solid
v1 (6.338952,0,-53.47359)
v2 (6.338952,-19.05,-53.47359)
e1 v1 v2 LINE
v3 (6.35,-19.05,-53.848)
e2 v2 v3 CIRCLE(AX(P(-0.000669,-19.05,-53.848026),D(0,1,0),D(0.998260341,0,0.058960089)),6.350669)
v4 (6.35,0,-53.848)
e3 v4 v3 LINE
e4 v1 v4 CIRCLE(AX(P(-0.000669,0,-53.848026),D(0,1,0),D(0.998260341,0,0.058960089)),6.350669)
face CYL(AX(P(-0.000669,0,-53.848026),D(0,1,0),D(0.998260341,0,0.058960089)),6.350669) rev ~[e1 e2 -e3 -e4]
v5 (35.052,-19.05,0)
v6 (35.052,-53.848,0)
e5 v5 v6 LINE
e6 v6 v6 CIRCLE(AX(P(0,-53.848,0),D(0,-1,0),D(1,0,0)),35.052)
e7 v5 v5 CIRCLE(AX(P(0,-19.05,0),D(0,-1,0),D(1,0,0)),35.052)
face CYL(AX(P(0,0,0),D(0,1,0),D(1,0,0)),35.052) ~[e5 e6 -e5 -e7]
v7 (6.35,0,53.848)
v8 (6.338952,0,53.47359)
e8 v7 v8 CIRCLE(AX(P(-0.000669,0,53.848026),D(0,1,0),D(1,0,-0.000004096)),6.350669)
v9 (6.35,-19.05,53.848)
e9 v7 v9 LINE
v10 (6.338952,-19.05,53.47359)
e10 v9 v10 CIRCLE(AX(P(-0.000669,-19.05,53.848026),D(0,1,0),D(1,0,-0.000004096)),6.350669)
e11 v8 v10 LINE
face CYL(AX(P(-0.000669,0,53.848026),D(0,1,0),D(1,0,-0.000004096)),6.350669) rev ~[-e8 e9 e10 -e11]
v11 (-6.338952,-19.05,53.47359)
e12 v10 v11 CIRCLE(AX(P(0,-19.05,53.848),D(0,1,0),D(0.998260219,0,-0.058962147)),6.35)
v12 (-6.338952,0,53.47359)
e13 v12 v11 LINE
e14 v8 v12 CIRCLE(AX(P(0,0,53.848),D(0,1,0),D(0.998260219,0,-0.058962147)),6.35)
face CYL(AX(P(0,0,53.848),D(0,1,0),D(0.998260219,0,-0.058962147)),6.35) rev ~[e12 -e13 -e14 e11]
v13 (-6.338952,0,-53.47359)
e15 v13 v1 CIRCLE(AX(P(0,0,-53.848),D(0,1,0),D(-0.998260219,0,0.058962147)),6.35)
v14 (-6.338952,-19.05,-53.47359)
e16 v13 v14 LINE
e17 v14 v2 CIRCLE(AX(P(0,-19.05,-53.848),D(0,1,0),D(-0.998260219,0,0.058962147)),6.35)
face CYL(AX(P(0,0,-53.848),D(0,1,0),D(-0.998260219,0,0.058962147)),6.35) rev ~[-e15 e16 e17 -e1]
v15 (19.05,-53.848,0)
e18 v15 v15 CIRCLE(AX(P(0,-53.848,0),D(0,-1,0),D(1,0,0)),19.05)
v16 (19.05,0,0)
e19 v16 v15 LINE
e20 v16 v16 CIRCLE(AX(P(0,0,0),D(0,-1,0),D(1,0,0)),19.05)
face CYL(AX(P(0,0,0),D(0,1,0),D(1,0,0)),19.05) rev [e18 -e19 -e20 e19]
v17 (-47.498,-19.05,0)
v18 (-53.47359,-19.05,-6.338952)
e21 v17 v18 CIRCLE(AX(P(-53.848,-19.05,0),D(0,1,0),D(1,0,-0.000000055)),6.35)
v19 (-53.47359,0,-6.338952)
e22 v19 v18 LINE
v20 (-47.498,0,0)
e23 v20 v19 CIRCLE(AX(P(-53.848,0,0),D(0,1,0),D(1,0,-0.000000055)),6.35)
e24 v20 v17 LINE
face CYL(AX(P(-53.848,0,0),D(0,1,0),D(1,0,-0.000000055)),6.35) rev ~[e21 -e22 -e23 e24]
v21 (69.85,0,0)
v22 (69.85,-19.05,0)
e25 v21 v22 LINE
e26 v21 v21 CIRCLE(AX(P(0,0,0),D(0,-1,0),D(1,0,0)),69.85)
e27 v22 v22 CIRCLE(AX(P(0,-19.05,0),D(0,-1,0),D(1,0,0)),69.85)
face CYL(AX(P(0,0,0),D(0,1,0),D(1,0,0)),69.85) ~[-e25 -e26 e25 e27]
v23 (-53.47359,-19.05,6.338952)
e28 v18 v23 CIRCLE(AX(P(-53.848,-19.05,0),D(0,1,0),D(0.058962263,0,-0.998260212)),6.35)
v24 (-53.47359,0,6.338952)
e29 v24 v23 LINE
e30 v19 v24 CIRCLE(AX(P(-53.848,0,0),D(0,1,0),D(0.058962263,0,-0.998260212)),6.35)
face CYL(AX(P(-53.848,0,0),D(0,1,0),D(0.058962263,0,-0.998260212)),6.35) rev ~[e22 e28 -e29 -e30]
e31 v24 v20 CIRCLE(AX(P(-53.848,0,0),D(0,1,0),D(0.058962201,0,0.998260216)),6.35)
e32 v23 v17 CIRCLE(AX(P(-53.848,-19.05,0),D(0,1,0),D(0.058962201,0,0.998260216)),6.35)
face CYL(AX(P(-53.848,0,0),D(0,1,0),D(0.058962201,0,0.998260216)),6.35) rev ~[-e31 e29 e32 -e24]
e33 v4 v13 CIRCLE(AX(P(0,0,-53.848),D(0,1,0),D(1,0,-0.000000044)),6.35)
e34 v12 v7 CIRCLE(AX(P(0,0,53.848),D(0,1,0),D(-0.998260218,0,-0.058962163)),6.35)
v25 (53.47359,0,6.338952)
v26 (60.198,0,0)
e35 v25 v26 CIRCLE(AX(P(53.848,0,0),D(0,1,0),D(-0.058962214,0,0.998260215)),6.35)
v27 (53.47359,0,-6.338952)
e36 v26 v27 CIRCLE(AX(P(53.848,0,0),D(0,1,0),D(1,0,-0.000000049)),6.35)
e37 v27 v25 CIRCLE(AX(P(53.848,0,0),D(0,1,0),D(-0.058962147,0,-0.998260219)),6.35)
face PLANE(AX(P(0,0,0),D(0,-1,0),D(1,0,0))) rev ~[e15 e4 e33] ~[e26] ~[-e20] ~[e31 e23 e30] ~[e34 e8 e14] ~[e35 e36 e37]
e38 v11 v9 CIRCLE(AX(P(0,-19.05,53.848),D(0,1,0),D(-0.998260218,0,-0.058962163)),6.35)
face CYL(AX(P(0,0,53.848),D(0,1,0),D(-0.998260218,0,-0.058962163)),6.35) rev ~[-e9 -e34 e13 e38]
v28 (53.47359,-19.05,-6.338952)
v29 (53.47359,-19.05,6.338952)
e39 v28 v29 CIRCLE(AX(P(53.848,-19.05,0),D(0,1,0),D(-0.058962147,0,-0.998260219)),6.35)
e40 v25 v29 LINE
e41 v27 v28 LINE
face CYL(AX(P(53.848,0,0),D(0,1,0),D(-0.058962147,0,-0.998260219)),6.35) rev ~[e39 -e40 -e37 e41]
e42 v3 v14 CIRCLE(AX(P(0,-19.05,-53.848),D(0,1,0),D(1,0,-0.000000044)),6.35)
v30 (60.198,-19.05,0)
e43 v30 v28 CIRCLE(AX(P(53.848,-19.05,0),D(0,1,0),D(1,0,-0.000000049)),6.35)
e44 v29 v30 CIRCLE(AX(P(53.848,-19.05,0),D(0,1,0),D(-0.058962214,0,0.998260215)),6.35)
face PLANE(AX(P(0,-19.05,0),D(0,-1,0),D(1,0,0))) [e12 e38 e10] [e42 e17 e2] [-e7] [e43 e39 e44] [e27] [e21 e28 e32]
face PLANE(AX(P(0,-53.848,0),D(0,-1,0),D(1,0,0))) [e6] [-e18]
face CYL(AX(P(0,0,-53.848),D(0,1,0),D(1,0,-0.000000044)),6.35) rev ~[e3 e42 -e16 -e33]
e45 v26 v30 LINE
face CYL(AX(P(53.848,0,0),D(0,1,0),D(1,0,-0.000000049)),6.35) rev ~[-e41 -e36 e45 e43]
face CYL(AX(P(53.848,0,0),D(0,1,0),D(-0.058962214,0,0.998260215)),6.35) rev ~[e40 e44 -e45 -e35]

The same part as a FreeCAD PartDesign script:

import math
import FreeCAD as App
import Part
import Sketcher
from FreeCAD import Vector
Q = App.Units.Quantity

doc = App.newDocument("Part")
body = doc.addObject("PartDesign::Body", "Body")

# Sketch on XZ plane
sketch1 = doc.addObject("Sketcher::SketchObject", "Sketch")
body.addObject(sketch1)
sketch1.AttachmentSupport = (doc.XZ_Plane, [""])
sketch1.MapMode = "FlatFace"
sketch1.addGeometry([
    Part.Circle(Vector(0, 0, 0), Vector(0, 0, 1), 35.052),
    Part.Circle(Vector(0, 0, 0), Vector(0, 0, 1), 19.05),
], False)
sketch1.addConstraint([
    Sketcher.Constraint("Coincident", 0, 3, -1, 1),
    Sketcher.Constraint("Coincident", 1, 3, -1, 1),
    Sketcher.Constraint("Diameter", 1, Q("1.5 in")),
    Sketcher.Constraint("Diameter", 0, Q("2.76 in")),
])
pad1 = doc.addObject("PartDesign::Pad", "Pad")
body.addObject(pad1)
pad1.Profile = sketch1
pad1.Length = Q("2.12 in")

# Sketch on XZ plane
sketch2 = doc.addObject("Sketcher::SketchObject", "Sketch001")
body.addObject(sketch2)
sketch2.AttachmentSupport = (doc.XZ_Plane, [""])
sketch2.MapMode = "FlatFace"
sketch2.addGeometry([
    Part.Circle(Vector(0, 0, 0), Vector(0, 0, 1), 69.85),  # 0
    Part.ArcOfCircle(Part.Circle(Vector(-53.848, 0, 0), Vector(0, 0, 1), 6.35), math.radians(86.619751), math.radians(273.380249)),  # 1
    Part.ArcOfCircle(Part.Circle(Vector(-53.848, 0, 0), Vector(0, 0, 1), 6.35), math.radians(0.000003), math.radians(86.619754)),  # 2
    Part.ArcOfCircle(Part.Circle(Vector(-53.848, 0, 0), Vector(0, 0, 1), 6.35), math.radians(-86.619754), math.radians(-0.000003)),  # 3
    Part.ArcOfCircle(Part.Circle(Vector(0, -53.848, 0), Vector(0, 0, 1), 6.35), math.radians(176.619756), math.radians(359.999998)),  # 4
    Part.ArcOfCircle(Part.Circle(Vector(0, -53.848, 0), Vector(0, 0, 1), 6.35), math.radians(3.380243), math.radians(176.619757)),  # 5
    Part.ArcOfCircle(Part.Circle(Vector(-0.000669, -53.848026, 0), Vector(0, 0, 1), 6.350669), math.radians(0.000235), math.radians(3.380125)),  # 6
    Part.Circle(Vector(0, 0, 0), Vector(0, 0, 1), 35.052),  # 7
    Part.ArcOfCircle(Part.Circle(Vector(53.848, 0, 0), Vector(0, 0, 1), 6.35), math.radians(-93.380247), math.radians(-0.000003)),  # 8
    Part.ArcOfCircle(Part.Circle(Vector(53.848, 0, 0), Vector(0, 0, 1), 6.35), math.radians(93.380243), math.radians(266.619757)),  # 9
    Part.ArcOfCircle(Part.Circle(Vector(53.848, 0, 0), Vector(0, 0, 1), 6.35), math.radians(0.000003), math.radians(93.380247)),  # 10
    Part.ArcOfCircle(Part.Circle(Vector(-0.000669, 53.848026, 0), Vector(0, 0, 1), 6.350669), math.radians(-3.380125), math.radians(-0.000235)),  # 11
    Part.ArcOfCircle(Part.Circle(Vector(0, 53.848, 0), Vector(0, 0, 1), 6.35), math.radians(-176.619757), math.radians(-3.380243)),  # 12
    Part.ArcOfCircle(Part.Circle(Vector(0, 53.848, 0), Vector(0, 0, 1), 6.35), math.radians(0.000002), math.radians(183.380244)),  # 13
], False)
sketch2.addConstraint([
    Sketcher.Constraint("Tangent", 1, 1, 2, 2),
    Sketcher.Constraint("Tangent", 2, 1, 3, 2),
    Sketcher.Constraint("Tangent", 3, 1, 1, 2),
    Sketcher.Constraint("Tangent", 4, 1, 5, 2),
    Sketcher.Constraint("Coincident", 5, 1, 6, 2),
    Sketcher.Constraint("Coincident", 6, 1, 4, 2),
    Sketcher.Constraint("Tangent", 8, 1, 9, 2),
    Sketcher.Constraint("Tangent", 9, 1, 10, 2),
    Sketcher.Constraint("Tangent", 10, 1, 8, 2),
    Sketcher.Constraint("Coincident", 11, 1, 12, 2),
    Sketcher.Constraint("Tangent", 12, 1, 13, 2),
    Sketcher.Constraint("Coincident", 13, 1, 11, 2),
    Sketcher.Constraint("Coincident", 0, 3, -1, 1),
    Sketcher.Constraint("Coincident", 7, 3, -1, 1),
    Sketcher.Constraint("Equal", 3, 4),
    Sketcher.Constraint("Equal", 4, 5),
    Sketcher.Constraint("Equal", 5, 8),
    Sketcher.Constraint("Equal", 6, 11),
    Sketcher.Constraint("Equal", 10, 12),
    Sketcher.Constraint("Equal", 12, 13),
    Sketcher.Constraint("Symmetric", 1, 3, 8, 3, -1, 1),
    Sketcher.Constraint("Symmetric", 4, 3, 12, 3, -1, 1),
    Sketcher.Constraint("Symmetric", 4, 1, 5, 1, -2),
    Sketcher.Constraint("Symmetric", 3, 1, 8, 1, -2),
    Sketcher.Constraint("PointOnObject", 2, 1, -1),
    Sketcher.Constraint("PointOnObject", 10, 1, -1),
    Sketcher.Constraint("Horizontal", 5, 3, 6, 1),
    Sketcher.Constraint("Horizontal", 1, 1, 9, 1),
    Sketcher.Constraint("Horizontal", 11, 1, 12, 1),
    Sketcher.Constraint("Horizontal", 12, 3, 13, 1),
    Sketcher.Constraint("Vertical", 1, 1, 3, 1),
    Sketcher.Constraint("Vertical", 5, 1, 11, 1),
    Sketcher.Constraint("Diameter", 0, Q("5.5 in")),
    Sketcher.Constraint("Diameter", 7, Q("2.76 in")),
    Sketcher.Constraint("Radius", 1, Q("0.25 in")),
    Sketcher.Constraint("DistanceX", 1, 3, -1, 1, Q("2.12 in")),
    Sketcher.Constraint("DistanceY", 4, 3, -1, 1, Q("2.12 in")),
    Sketcher.Constraint("Radius", 6, Q("6.350669 mm")),
    Sketcher.Constraint("DistanceX", 1, 1, -1, 1, Q("53.47359 mm")),
    Sketcher.Constraint("DistanceY", 4, 1, -1, 1, Q("53.47359 mm")),
])
pad2 = doc.addObject("PartDesign::Pad", "Pad001")
body.addObject(pad2)
pad2.Profile = sketch2
pad2.Length = Q("0.75 in")

doc.recompute()
